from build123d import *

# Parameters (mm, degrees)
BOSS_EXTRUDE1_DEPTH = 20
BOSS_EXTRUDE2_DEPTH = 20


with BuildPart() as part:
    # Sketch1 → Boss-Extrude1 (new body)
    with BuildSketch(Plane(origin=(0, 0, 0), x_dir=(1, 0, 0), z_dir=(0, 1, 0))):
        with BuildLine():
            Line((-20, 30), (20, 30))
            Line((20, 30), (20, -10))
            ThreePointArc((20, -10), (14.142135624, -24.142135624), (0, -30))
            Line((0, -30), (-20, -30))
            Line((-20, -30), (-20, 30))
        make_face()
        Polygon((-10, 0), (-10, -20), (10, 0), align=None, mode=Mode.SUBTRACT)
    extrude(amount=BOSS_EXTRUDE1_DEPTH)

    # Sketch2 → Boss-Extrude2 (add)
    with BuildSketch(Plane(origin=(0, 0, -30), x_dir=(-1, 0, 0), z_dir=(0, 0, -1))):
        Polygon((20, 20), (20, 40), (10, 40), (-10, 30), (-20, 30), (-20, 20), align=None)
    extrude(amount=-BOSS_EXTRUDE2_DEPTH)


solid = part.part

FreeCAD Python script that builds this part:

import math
import FreeCAD as App
import Part
import Sketcher

V = App.Vector
Q = App.Units.Quantity


def add_polygon(sketch, points):
    """Adds a closed chain of lines whose ends are joined by coincident constraints."""
    first, n = sketch.GeometryCount, len(points)
    for a, b in zip(points, points[1:] + points[:1]):
        sketch.addGeometry(Part.LineSegment(App.Vector(*a, 0), App.Vector(*b, 0)), False)
    for i in range(n):
        sketch.addConstraint(Sketcher.Constraint("Coincident", first + i, 2, first + (i + 1) % n, 1))

doc = App.newDocument("Part")
body = doc.addObject("PartDesign::Body", "Body")

# Sketch on XZ plane
sketch1 = body.newObject("Sketcher::SketchObject", "Sketch")
sketch1.AttachmentSupport = (doc.getObject("XZ_Plane"), [""])
sketch1.MapMode = "FlatFace"
sketch1.addGeometry(Part.LineSegment(V(20, -30, 0), V(-20, -30, 0)), False)  # 0
sketch1.addGeometry(Part.LineSegment(V(-20, -30, 0), V(-20, 30, 0)), False)  # 1
sketch1.addGeometry(Part.LineSegment(V(-20, 30, 0), V(0, 30, 0)), False)  # 2
sketch1.addGeometry(Part.ArcOfCircle(Part.Circle(V(0, 10, 0), V(0, 0, 1), 20), math.radians(0), math.radians(90)), False)  # 3
sketch1.addGeometry(Part.LineSegment(V(20, 10, 0), V(20, -30, 0)), False)  # 4
add_polygon(sketch1, [(-10, 0), (10, 0), (-10, 20)])  # lines 5-7
sketch1.addConstraint([
    Sketcher.Constraint("Coincident", 0, 2, 1, 1),
    Sketcher.Constraint("Coincident", 1, 2, 2, 1),
    Sketcher.Constraint("Tangent", 2, 2, 3, 2),
    Sketcher.Constraint("Tangent", 3, 1, 4, 1),
    Sketcher.Constraint("Coincident", 4, 2, 0, 1),
    Sketcher.Constraint("Horizontal", 0),
    Sketcher.Constraint("Vertical", 1),
    Sketcher.Constraint("Horizontal", 2),
    Sketcher.Constraint("Vertical", 4),
    Sketcher.Constraint("Horizontal", 5),
    Sketcher.Constraint("Vertical", 7),
    Sketcher.Constraint("Symmetric", 1, 2, 4, 2, -1, 1),
    Sketcher.Constraint("Symmetric", 5, 2, 7, 2, -1, 1),
    Sketcher.Constraint("PointOnObject", 3, 3, -2),
    Sketcher.Constraint("Equal", 2, 5),
    Sketcher.Constraint("Equal", 0, 4),
    Sketcher.Constraint("Equal", 5, 7),
    Sketcher.Constraint("Radius", 3, Q("20 mm")),
])
pad1 = body.newObject("PartDesign::Pad", "Pad")
pad1.Profile = sketch1
pad1.Length = 20
pad1.Reversed = True

# Sketch on XY plane
sketch2 = body.newObject("Sketcher::SketchObject", "Sketch001")
sketch2.AttachmentSupport = (doc.getObject("XY_Plane"), [""])
sketch2.MapMode = "FlatFace"
sketch2.AttachmentOffset = App.Placement(V(0, 0, -30), App.Rotation())
add_polygon(sketch2, [(-20, 20), (-20, 40), (-10, 40), (10, 30), (20, 30), (20, 20)])  # lines 0-5
sketch2.addConstraint([
    Sketcher.Constraint("Vertical", 0),
    Sketcher.Constraint("Horizontal", 1),
    Sketcher.Constraint("Horizontal", 3),
    Sketcher.Constraint("Vertical", 4),
    Sketcher.Constraint("Horizontal", 5),
    Sketcher.Constraint("Equal", 1, 3),
    Sketcher.Constraint("Equal", 3, 4),
    Sketcher.Constraint("DistanceX", 1, 1, 1, 2, Q("10 mm")),
    Sketcher.Constraint("DistanceX", 5, 2, 5, 1, Q("40 mm")),
    Sketcher.Constraint("DistanceY", 0, 1, 0, 2, Q("20 mm")),
    Sketcher.Constraint("DistanceX", 0, 2, -1, 1, Q("20 mm")),
    Sketcher.Constraint("DistanceY", -1, 1, 0, 2, Q("40 mm")),
])
pad2 = body.newObject("PartDesign::Pad", "Pad001")
pad2.Profile = sketch2
pad2.Length = 20

doc.recompute()
